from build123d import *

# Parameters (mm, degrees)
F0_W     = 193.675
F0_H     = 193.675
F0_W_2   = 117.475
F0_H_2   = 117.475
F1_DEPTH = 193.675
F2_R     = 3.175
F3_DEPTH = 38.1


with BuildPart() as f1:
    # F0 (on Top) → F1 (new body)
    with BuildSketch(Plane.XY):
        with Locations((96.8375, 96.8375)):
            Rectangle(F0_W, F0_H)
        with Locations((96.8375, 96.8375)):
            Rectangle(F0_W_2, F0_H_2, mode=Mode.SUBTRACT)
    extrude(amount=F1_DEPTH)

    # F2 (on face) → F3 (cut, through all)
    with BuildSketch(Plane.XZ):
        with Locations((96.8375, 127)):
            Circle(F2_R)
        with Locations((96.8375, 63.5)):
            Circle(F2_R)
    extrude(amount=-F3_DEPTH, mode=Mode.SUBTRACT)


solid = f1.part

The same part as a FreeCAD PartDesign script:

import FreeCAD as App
import Part
import Sketcher
from FreeCAD import Vector
Q = App.Units.Quantity

doc = App.newDocument("Part")
body = doc.addObject("PartDesign::Body", "Body")

sketch1 = body.newObject("Sketcher::SketchObject", "Sketch")
sketch1.AttachmentSupport = (doc.getObject("XY_Plane"), [""])
sketch1.MapMode = "FlatFace"
sketch1.addGeometry([
    Part.LineSegment(Vector(0, 194, 0), Vector(0, 0, 0)),
    Part.LineSegment(Vector(0, 0, 0), Vector(194, 0, 0)),
    Part.LineSegment(Vector(194, 0, 0), Vector(194, 194, 0)),
    Part.LineSegment(Vector(194, 194, 0), Vector(0, 194, 0)),
    Part.LineSegment(Vector(156, 38, 0), Vector(38, 38, 0)),
    Part.LineSegment(Vector(38, 38, 0), Vector(38, 156, 0)),
    Part.LineSegment(Vector(38, 156, 0), Vector(156, 156, 0)),
    Part.LineSegment(Vector(156, 156, 0), Vector(156, 38, 0)),
], False)
sketch1.addConstraint([
    Sketcher.Constraint("Coincident", 0, 2, 1, 1),
    Sketcher.Constraint("Coincident", 1, 2, 2, 1),
    Sketcher.Constraint("Coincident", 2, 2, 3, 1),
    Sketcher.Constraint("Coincident", 3, 2, 0, 1),
    Sketcher.Constraint("Coincident", 4, 2, 5, 1),
    Sketcher.Constraint("Coincident", 5, 2, 6, 1),
    Sketcher.Constraint("Coincident", 6, 2, 7, 1),
    Sketcher.Constraint("Coincident", 7, 2, 4, 1),
    Sketcher.Constraint("Vertical", 0),
    Sketcher.Constraint("Horizontal", 1),
    Sketcher.Constraint("Vertical", 2),
    Sketcher.Constraint("Horizontal", 3),
    Sketcher.Constraint("Horizontal", 4),
    Sketcher.Constraint("Vertical", 5),
    Sketcher.Constraint("Horizontal", 6),
    Sketcher.Constraint("Vertical", 7),
    Sketcher.Constraint("Coincident", 0, 2, -1, 1),
    Sketcher.Constraint("Equal", 3, 0),
    Sketcher.Constraint("Equal", 6, 5),
    Sketcher.Constraint("DistanceX", -1, 1, 4, 2, Q("1.5 in")),
    Sketcher.Constraint("DistanceY", -1, 1, 4, 2, Q("1.5 in")),
    Sketcher.Constraint("DistanceY", 5, 2, 3, 2, Q("1.5 in")),
    Sketcher.Constraint("DistanceX", 1, 1, 1, 2, Q("7.625 in")),
])
pad1 = body.newObject("PartDesign::Pad", "Pad")
pad1.Profile = sketch1
pad1.Length = Q("7.625 in")

sketch2 = body.newObject("Sketcher::SketchObject", "Sketch001")
sketch2.AttachmentSupport = (doc.getObject("XZ_Plane"), [""])
sketch2.MapMode = "FlatFace"
sketch2.addGeometry([
    Part.Circle(Vector(96.8, 127, 0), Vector(0, 0, 1), 3.2),
    Part.Circle(Vector(96.8, 63.5, 0), Vector(0, 0, 1), 3.2),
], False)
sketch2.addConstraint([
    Sketcher.Constraint("Equal", 0, 1),
    Sketcher.Constraint("Vertical", 0, 3, 1, 3),
    Sketcher.Constraint("Diameter", 0, Q("0.25 in")),
    Sketcher.Constraint("DistanceY", -1, 1, 0, 3, Q("5 in")),
    Sketcher.Constraint("DistanceY", -1, 1, 1, 3, Q("2.5 in")),
    Sketcher.Constraint("DistanceX", -1, 1, 0, 3, Q("3.8125 in")),
])
pocket1 = body.newObject("PartDesign::Pocket", "Pocket")
pocket1.Profile = sketch2
pocket1.Length = Q("1.5 in")

doc.recompute()
